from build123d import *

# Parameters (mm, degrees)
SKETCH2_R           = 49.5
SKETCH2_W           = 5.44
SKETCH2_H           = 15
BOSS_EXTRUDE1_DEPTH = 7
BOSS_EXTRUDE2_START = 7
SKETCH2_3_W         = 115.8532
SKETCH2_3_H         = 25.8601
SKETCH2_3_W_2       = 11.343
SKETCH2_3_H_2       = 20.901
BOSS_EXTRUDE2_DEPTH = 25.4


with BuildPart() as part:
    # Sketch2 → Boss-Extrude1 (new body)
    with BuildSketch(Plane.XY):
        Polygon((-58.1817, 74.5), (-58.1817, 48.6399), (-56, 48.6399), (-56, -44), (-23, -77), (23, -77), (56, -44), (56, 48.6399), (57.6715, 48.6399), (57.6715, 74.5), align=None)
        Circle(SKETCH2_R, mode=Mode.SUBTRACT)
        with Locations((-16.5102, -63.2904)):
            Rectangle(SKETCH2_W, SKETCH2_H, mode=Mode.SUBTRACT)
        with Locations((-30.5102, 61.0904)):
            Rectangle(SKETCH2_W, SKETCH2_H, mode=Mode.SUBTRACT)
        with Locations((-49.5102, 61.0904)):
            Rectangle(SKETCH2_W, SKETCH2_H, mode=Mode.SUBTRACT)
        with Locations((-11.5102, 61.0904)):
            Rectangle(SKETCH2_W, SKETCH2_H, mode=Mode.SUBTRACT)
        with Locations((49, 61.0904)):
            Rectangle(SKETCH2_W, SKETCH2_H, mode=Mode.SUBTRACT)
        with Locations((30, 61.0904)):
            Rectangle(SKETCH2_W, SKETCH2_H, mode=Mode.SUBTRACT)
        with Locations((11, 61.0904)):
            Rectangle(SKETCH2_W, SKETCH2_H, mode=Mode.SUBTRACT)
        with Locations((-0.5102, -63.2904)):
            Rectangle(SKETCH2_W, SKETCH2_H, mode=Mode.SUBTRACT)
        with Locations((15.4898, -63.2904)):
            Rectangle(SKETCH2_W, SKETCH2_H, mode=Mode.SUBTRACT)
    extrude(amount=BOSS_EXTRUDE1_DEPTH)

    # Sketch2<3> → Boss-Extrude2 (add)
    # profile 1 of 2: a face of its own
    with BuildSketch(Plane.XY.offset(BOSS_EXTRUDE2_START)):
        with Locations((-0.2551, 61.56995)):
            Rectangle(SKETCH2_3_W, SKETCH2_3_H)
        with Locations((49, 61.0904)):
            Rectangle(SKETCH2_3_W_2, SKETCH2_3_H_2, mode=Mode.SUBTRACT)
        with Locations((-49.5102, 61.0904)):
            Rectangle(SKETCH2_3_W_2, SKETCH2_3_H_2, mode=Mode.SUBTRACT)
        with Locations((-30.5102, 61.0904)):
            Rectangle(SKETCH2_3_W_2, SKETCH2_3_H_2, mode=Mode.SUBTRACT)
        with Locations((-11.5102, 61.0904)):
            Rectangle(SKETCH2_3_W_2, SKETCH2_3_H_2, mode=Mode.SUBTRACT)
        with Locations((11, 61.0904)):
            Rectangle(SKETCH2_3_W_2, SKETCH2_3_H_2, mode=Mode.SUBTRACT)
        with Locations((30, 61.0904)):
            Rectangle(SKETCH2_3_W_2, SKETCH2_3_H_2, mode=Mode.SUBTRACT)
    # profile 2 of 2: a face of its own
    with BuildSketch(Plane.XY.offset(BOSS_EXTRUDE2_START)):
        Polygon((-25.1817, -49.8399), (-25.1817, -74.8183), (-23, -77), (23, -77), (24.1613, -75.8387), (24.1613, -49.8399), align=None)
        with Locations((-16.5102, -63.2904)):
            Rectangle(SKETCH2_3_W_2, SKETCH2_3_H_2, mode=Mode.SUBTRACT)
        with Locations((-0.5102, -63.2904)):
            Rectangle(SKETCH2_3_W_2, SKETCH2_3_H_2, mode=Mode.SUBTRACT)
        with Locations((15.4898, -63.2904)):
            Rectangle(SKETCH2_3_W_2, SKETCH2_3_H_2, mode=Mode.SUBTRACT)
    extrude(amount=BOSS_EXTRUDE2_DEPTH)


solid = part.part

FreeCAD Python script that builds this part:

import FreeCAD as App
import Part
import Sketcher
from FreeCAD import Vector
Q = App.Units.Quantity


def add_polygon(sketch, points):
    """Adds a closed chain of lines whose ends are joined by coincident constraints."""
    first, n = sketch.GeometryCount, len(points)
    for a, b in zip(points, points[1:] + points[:1]):
        sketch.addGeometry(Part.LineSegment(App.Vector(*a, 0), App.Vector(*b, 0)), False)
    for i in range(n):
        sketch.addConstraint(Sketcher.Constraint("Coincident", first + i, 2, first + (i + 1) % n, 1))

doc = App.newDocument("Part")
body = doc.addObject("PartDesign::Body", "Body")

# Sketch on XY plane
sketch1 = doc.addObject("Sketcher::SketchObject", "Sketch")
body.addObject(sketch1)
sketch1.AttachmentSupport = (doc.XY_Plane, [""])
sketch1.MapMode = "FlatFace"
add_polygon(sketch1, [(-58.1817, 74.5), (-58.1817, 48.6399), (-56, 48.6399), (-56, -44), (-23, -77), (23, -77), (56, -44), (56, 48.6399), (57.6715, 48.6399), (57.6715, 74.5)])  # lines 0-9
add_polygon(sketch1, [(-13.7902, -70.7904), (-19.2302, -70.7904), (-19.2302, -55.7904), (-13.7902, -55.7904)])  # lines 10-13
add_polygon(sketch1, [(2.2098, -70.7904), (-3.2302, -70.7904), (-3.2302, -55.7904), (2.2098, -55.7904)])  # lines 14-17
add_polygon(sketch1, [(18.2098, -70.7904), (12.7698, -70.7904), (12.7698, -55.7904), (18.2098, -55.7904)])  # lines 18-21
add_polygon(sketch1, [(-46.7902, 53.5904), (-52.2302, 53.5904), (-52.2302, 68.5904), (-46.7902, 68.5904)])  # lines 22-25
add_polygon(sketch1, [(-27.7902, 53.5904), (-33.2302, 53.5904), (-33.2302, 68.5904), (-27.7902, 68.5904)])  # lines 26-29
add_polygon(sketch1, [(-8.7902, 53.5904), (-14.2302, 53.5904), (-14.2302, 68.5904), (-8.7902, 68.5904)])  # lines 30-33
sketch1.addGeometry(Part.Circle(Vector(0, 0, 0), Vector(0, 0, 1), 49.5), False)  # 34
add_polygon(sketch1, [(13.72, 53.5904), (8.28, 53.5904), (8.28, 68.5904), (13.72, 68.5904)])  # lines 35-38
add_polygon(sketch1, [(32.72, 53.5904), (27.28, 53.5904), (27.28, 68.5904), (32.72, 68.5904)])  # lines 39-42
add_polygon(sketch1, [(51.72, 53.5904), (46.28, 53.5904), (46.28, 68.5904), (51.72, 68.5904)])  # lines 43-46
sketch1.addConstraint(Sketcher.Constraint("Vertical", 0))
sketch1.addConstraint(Sketcher.Constraint("Horizontal", 1))
sketch1.addConstraint(Sketcher.Constraint("Vertical", 2))
sketch1.addConstraint(Sketcher.Constraint("Horizontal", 4))
sketch1.addConstraint(Sketcher.Constraint("Vertical", 6))
sketch1.addConstraint(Sketcher.Constraint("Horizontal", 7))
sketch1.addConstraint(Sketcher.Constraint("Vertical", 8))
sketch1.addConstraint(Sketcher.Constraint("Horizontal", 9))
sketch1.addConstraint(Sketcher.Constraint("Horizontal", 10))
sketch1.addConstraint(Sketcher.Constraint("Vertical", 11))
sketch1.addConstraint(Sketcher.Constraint("Horizontal", 12))
sketch1.addConstraint(Sketcher.Constraint("Vertical", 13))
sketch1.addConstraint(Sketcher.Constraint("Horizontal", 14))
sketch1.addConstraint(Sketcher.Constraint("Vertical", 15))
sketch1.addConstraint(Sketcher.Constraint("Horizontal", 16))
sketch1.addConstraint(Sketcher.Constraint("Vertical", 17))
sketch1.addConstraint(Sketcher.Constraint("Horizontal", 18))
sketch1.addConstraint(Sketcher.Constraint("Vertical", 19))
sketch1.addConstraint(Sketcher.Constraint("Horizontal", 20))
sketch1.addConstraint(Sketcher.Constraint("Vertical", 21))
sketch1.addConstraint(Sketcher.Constraint("Horizontal", 22))
sketch1.addConstraint(Sketcher.Constraint("Vertical", 23))
sketch1.addConstraint(Sketcher.Constraint("Horizontal", 24))
sketch1.addConstraint(Sketcher.Constraint("Vertical", 25))
sketch1.addConstraint(Sketcher.Constraint("Horizontal", 26))
sketch1.addConstraint(Sketcher.Constraint("Vertical", 27))
sketch1.addConstraint(Sketcher.Constraint("Horizontal", 28))
sketch1.addConstraint(Sketcher.Constraint("Vertical", 29))
sketch1.addConstraint(Sketcher.Constraint("Horizontal", 30))
sketch1.addConstraint(Sketcher.Constraint("Vertical", 31))
sketch1.addConstraint(Sketcher.Constraint("Horizontal", 32))
sketch1.addConstraint(Sketcher.Constraint("Vertical", 33))
sketch1.addConstraint(Sketcher.Constraint("Horizontal", 35))
sketch1.addConstraint(Sketcher.Constraint("Vertical", 36))
sketch1.addConstraint(Sketcher.Constraint("Horizontal", 37))
sketch1.addConstraint(Sketcher.Constraint("Vertical", 38))
sketch1.addConstraint(Sketcher.Constraint("Horizontal", 39))
sketch1.addConstraint(Sketcher.Constraint("Vertical", 40))
sketch1.addConstraint(Sketcher.Constraint("Horizontal", 41))
sketch1.addConstraint(Sketcher.Constraint("Vertical", 42))
sketch1.addConstraint(Sketcher.Constraint("Horizontal", 43))
sketch1.addConstraint(Sketcher.Constraint("Vertical", 44))
sketch1.addConstraint(Sketcher.Constraint("Horizontal", 45))
sketch1.addConstraint(Sketcher.Constraint("Vertical", 46))
sketch1.addConstraint(Sketcher.Constraint("Coincident", 34, 3, -1, 1))
sketch1.addConstraint(Sketcher.Constraint("Symmetric", 2, 2, 5, 2, -2))
sketch1.addConstraint(Sketcher.Constraint("Perpendicular", 3, 5))
sketch1.addConstraint(Sketcher.Constraint("Horizontal", 1, 2, 6, 2))
sketch1.addConstraint(Sketcher.Constraint("Horizontal", 13, 2, 14, 2))
sketch1.addConstraint(Sketcher.Constraint("Horizontal", 12, 2, 15, 2))
sketch1.addConstraint(Sketcher.Constraint("Horizontal", 17, 2, 18, 2))
sketch1.addConstraint(Sketcher.Constraint("Horizontal", 16, 2, 19, 2))
sketch1.addConstraint(Sketcher.Constraint("Horizontal", 25, 2, 26, 2))
sketch1.addConstraint(Sketcher.Constraint("Horizontal", 24, 2, 27, 2))
sketch1.addConstraint(Sketcher.Constraint("Horizontal", 29, 2, 30, 2))
sketch1.addConstraint(Sketcher.Constraint("Horizontal", 28, 2, 31, 2))
sketch1.addConstraint(Sketcher.Constraint("Horizontal", 33, 2, 35, 2))
sketch1.addConstraint(Sketcher.Constraint("Horizontal", 32, 2, 36, 2))
sketch1.addConstraint(Sketcher.Constraint("Horizontal", 38, 2, 39, 2))
sketch1.addConstraint(Sketcher.Constraint("Horizontal", 37, 2, 40, 2))
sketch1.addConstraint(Sketcher.Constraint("Horizontal", 42, 2, 43, 2))
sketch1.addConstraint(Sketcher.Constraint("Horizontal", 41, 2, 44, 2))
sketch1.addConstraint(Sketcher.Constraint("Equal", 12, 14))
sketch1.addConstraint(Sketcher.Constraint("Equal", 16, 18))
sketch1.addConstraint(Sketcher.Constraint("Equal", 20, 22))
sketch1.addConstraint(Sketcher.Constraint("Equal", 24, 26))
sketch1.addConstraint(Sketcher.Constraint("Equal", 28, 30))
sketch1.addConstraint(Sketcher.Constraint("Equal", 32, 35))
sketch1.addConstraint(Sketcher.Constraint("Equal", 37, 39))
sketch1.addConstraint(Sketcher.Constraint("Equal", 41, 43))
sketch1.addConstraint(Sketcher.Constraint("Equal", 21, 23))
sketch1.addConstraint(Sketcher.Constraint("Equal", 3, 5))
sketch1.addConstraint(Sketcher.Constraint("Diameter", 34, Q("99 mm")))
sketch1.addConstraint(Sketcher.Constraint("DistanceX", 4, 1, 4, 2, Q("46 mm")))
sketch1.addConstraint(Sketcher.Constraint("DistanceY", 11, 1, 11, 2, Q("15 mm")))
sketch1.addConstraint(Sketcher.Constraint("DistanceX", 1, 2, -1, 1, Q("56 mm")))
sketch1.addConstraint(Sketcher.Constraint("DistanceY", 2, 2, -1, 1, Q("44 mm")))
sketch1.addConstraint(Sketcher.Constraint("DistanceX", 10, 2, 14, 2, Q("16 mm")))
sketch1.addConstraint(Sketcher.Constraint("DistanceX", 14, 2, 18, 2, Q("16 mm")))
sketch1.addConstraint(Sketcher.Constraint("DistanceX", 22, 2, 26, 2, Q("19 mm")))
sketch1.addConstraint(Sketcher.Constraint("DistanceX", 26, 2, 30, 2, Q("19 mm")))
sketch1.addConstraint(Sketcher.Constraint("DistanceX", 35, 2, 39, 2, Q("19 mm")))
sketch1.addConstraint(Sketcher.Constraint("DistanceX", 39, 2, 43, 2, Q("19 mm")))
sketch1.addConstraint(Sketcher.Constraint("DistanceX", 10, 2, 10, 1, Q("5.44 mm")))
sketch1.addConstraint(Sketcher.Constraint("DistanceY", -1, 1, 8, 2, Q("74.5 mm")))
sketch1.addConstraint(Sketcher.Constraint("DistanceX", -1, 1, 35, 2, Q("8.28 mm")))
sketch1.addConstraint(Sketcher.Constraint("DistanceX", 1, 1, 1, 2, Q("2.1817 mm")))
sketch1.addConstraint(Sketcher.Constraint("DistanceX", 7, 1, 7, 2, Q("1.6715 mm")))
sketch1.addConstraint(Sketcher.Constraint("DistanceY", 0, 2, 0, 1, Q("25.8601 mm")))
sketch1.addConstraint(Sketcher.Constraint("DistanceX", 10, 2, -1, 1, Q("19.2302 mm")))
sketch1.addConstraint(Sketcher.Constraint("DistanceY", 10, 2, -1, 1, Q("70.7904 mm")))
sketch1.addConstraint(Sketcher.Constraint("DistanceX", 22, 2, -1, 1, Q("52.2302 mm")))
sketch1.addConstraint(Sketcher.Constraint("DistanceY", -1, 1, 22, 2, Q("53.5904 mm")))
pad1 = doc.addObject("PartDesign::Pad", "Pad")
body.addObject(pad1)
pad1.Profile = sketch1
pad1.Length = 7

# Sketch on XY plane
sketch2 = doc.addObject("Sketcher::SketchObject", "Sketch001")
body.addObject(sketch2)
sketch2.AttachmentSupport = (doc.XY_Plane, [""])
sketch2.MapMode = "FlatFace"
sketch2.AttachmentOffset = App.Placement(Vector(0, 0, 7), App.Rotation())
add_polygon(sketch2, [(-58.1817, 74.5), (-58.1817, 48.6399), (57.6715, 48.6399), (57.6715, 74.5)])  # lines 0-3
add_polygon(sketch2, [(-43.8387, 50.6399), (-55.1817, 50.6399), (-55.1817, 71.5409), (-43.8387, 71.5409)])  # lines 4-7
add_polygon(sketch2, [(-24.8387, 50.6399), (-36.1817, 50.6399), (-36.1817, 71.5409), (-24.8387, 71.5409)])  # lines 8-11
add_polygon(sketch2, [(-5.8387, 50.6399), (-17.1817, 50.6399), (-17.1817, 71.5409), (-5.8387, 71.5409)])  # lines 12-15
add_polygon(sketch2, [(16.6715, 50.6399), (5.3285, 50.6399), (5.3285, 71.5409), (16.6715, 71.5409)])  # lines 16-19
add_polygon(sketch2, [(35.6715, 50.6399), (24.3285, 50.6399), (24.3285, 71.5409), (35.6715, 71.5409)])  # lines 20-23
add_polygon(sketch2, [(54.6715, 50.6399), (43.3285, 50.6399), (43.3285, 71.5409), (54.6715, 71.5409)])  # lines 24-27
add_polygon(sketch2, [(-25.1817, -49.8399), (-25.1817, -74.8183), (-23, -77), (23, -77), (24.1613, -75.8387), (24.1613, -49.8399)])  # lines 28-33
add_polygon(sketch2, [(-10.8387, -73.7409), (-22.1817, -73.7409), (-22.1817, -52.8399), (-10.8387, -52.8399)])  # lines 34-37
add_polygon(sketch2, [(5.1613, -73.7409), (-6.1817, -73.7409), (-6.1817, -52.8399), (5.1613, -52.8399)])  # lines 38-41
add_polygon(sketch2, [(21.1613, -73.7409), (9.8183, -73.7409), (9.8183, -52.8399), (21.1613, -52.8399)])  # lines 42-45
sketch2.addConstraint(Sketcher.Constraint("Vertical", 0))
sketch2.addConstraint(Sketcher.Constraint("Horizontal", 1))
sketch2.addConstraint(Sketcher.Constraint("Vertical", 2))
sketch2.addConstraint(Sketcher.Constraint("Horizontal", 3))
sketch2.addConstraint(Sketcher.Constraint("Horizontal", 4))
sketch2.addConstraint(Sketcher.Constraint("Vertical", 5))
sketch2.addConstraint(Sketcher.Constraint("Horizontal", 6))
sketch2.addConstraint(Sketcher.Constraint("Vertical", 7))
sketch2.addConstraint(Sketcher.Constraint("Horizontal", 8))
sketch2.addConstraint(Sketcher.Constraint("Vertical", 9))
sketch2.addConstraint(Sketcher.Constraint("Horizontal", 10))
sketch2.addConstraint(Sketcher.Constraint("Vertical", 11))
sketch2.addConstraint(Sketcher.Constraint("Horizontal", 12))
sketch2.addConstraint(Sketcher.Constraint("Vertical", 13))
sketch2.addConstraint(Sketcher.Constraint("Horizontal", 14))
sketch2.addConstraint(Sketcher.Constraint("Vertical", 15))
sketch2.addConstraint(Sketcher.Constraint("Horizontal", 16))
sketch2.addConstraint(Sketcher.Constraint("Vertical", 17))
sketch2.addConstraint(Sketcher.Constraint("Horizontal", 18))
sketch2.addConstraint(Sketcher.Constraint("Vertical", 19))
sketch2.addConstraint(Sketcher.Constraint("Horizontal", 20))
sketch2.addConstraint(Sketcher.Constraint("Vertical", 21))
sketch2.addConstraint(Sketcher.Constraint("Horizontal", 22))
sketch2.addConstraint(Sketcher.Constraint("Vertical", 23))
sketch2.addConstraint(Sketcher.Constraint("Horizontal", 24))
sketch2.addConstraint(Sketcher.Constraint("Vertical", 25))
sketch2.addConstraint(Sketcher.Constraint("Horizontal", 26))
sketch2.addConstraint(Sketcher.Constraint("Vertical", 27))
sketch2.addConstraint(Sketcher.Constraint("Vertical", 28))
sketch2.addConstraint(Sketcher.Constraint("Horizontal", 30))
sketch2.addConstraint(Sketcher.Constraint("Vertical", 32))
sketch2.addConstraint(Sketcher.Constraint("Horizontal", 33))
sketch2.addConstraint(Sketcher.Constraint("Horizontal", 34))
sketch2.addConstraint(Sketcher.Constraint("Vertical", 35))
sketch2.addConstraint(Sketcher.Constraint("Horizontal", 36))
sketch2.addConstraint(Sketcher.Constraint("Vertical", 37))
sketch2.addConstraint(Sketcher.Constraint("Horizontal", 38))
sketch2.addConstraint(Sketcher.Constraint("Vertical", 39))
sketch2.addConstraint(Sketcher.Constraint("Horizontal", 40))
sketch2.addConstraint(Sketcher.Constraint("Vertical", 41))
sketch2.addConstraint(Sketcher.Constraint("Horizontal", 42))
sketch2.addConstraint(Sketcher.Constraint("Vertical", 43))
sketch2.addConstraint(Sketcher.Constraint("Horizontal", 44))
sketch2.addConstraint(Sketcher.Constraint("Vertical", 45))
sketch2.addConstraint(Sketcher.Constraint("Perpendicular", 29, 31))
sketch2.addConstraint(Sketcher.Constraint("Horizontal", 7, 2, 8, 2))
sketch2.addConstraint(Sketcher.Constraint("Horizontal", 6, 2, 9, 2))
sketch2.addConstraint(Sketcher.Constraint("Horizontal", 11, 2, 12, 2))
sketch2.addConstraint(Sketcher.Constraint("Horizontal", 10, 2, 13, 2))
sketch2.addConstraint(Sketcher.Constraint("Horizontal", 15, 2, 16, 2))
sketch2.addConstraint(Sketcher.Constraint("Horizontal", 14, 2, 17, 2))
sketch2.addConstraint(Sketcher.Constraint("Horizontal", 19, 2, 20, 2))
sketch2.addConstraint(Sketcher.Constraint("Horizontal", 18, 2, 21, 2))
sketch2.addConstraint(Sketcher.Constraint("Horizontal", 23, 2, 24, 2))
sketch2.addConstraint(Sketcher.Constraint("Horizontal", 22, 2, 25, 2))
sketch2.addConstraint(Sketcher.Constraint("Horizontal", 37, 2, 38, 2))
sketch2.addConstraint(Sketcher.Constraint("Horizontal", 36, 2, 39, 2))
sketch2.addConstraint(Sketcher.Constraint("Horizontal", 41, 2, 42, 2))
sketch2.addConstraint(Sketcher.Constraint("Horizontal", 40, 2, 43, 2))
sketch2.addConstraint(Sketcher.Constraint("Equal", 6, 8))
sketch2.addConstraint(Sketcher.Constraint("Equal", 10, 12))
sketch2.addConstraint(Sketcher.Constraint("Equal", 14, 16))
sketch2.addConstraint(Sketcher.Constraint("Equal", 18, 20))
sketch2.addConstraint(Sketcher.Constraint("Equal", 22, 24))
sketch2.addConstraint(Sketcher.Constraint("Equal", 26, 34))
sketch2.addConstraint(Sketcher.Constraint("Equal", 36, 38))
sketch2.addConstraint(Sketcher.Constraint("Equal", 40, 42))
sketch2.addConstraint(Sketcher.Constraint("Equal", 27, 35))
sketch2.addConstraint(Sketcher.Constraint("DistanceX", 30, 1, 30, 2, Q("46 mm")))
sketch2.addConstraint(Sketcher.Constraint("Angle", 29, Q("-45 deg")))
sketch2.addConstraint(Sketcher.Constraint("DistanceX", 29, 2, -1, 1, Q("23 mm")))
sketch2.addConstraint(Sketcher.Constraint("DistanceY", 29, 2, -1, 1, Q("77 mm")))
sketch2.addConstraint(Sketcher.Constraint("DistanceX", 0, 2, 4, 2, Q("3 mm")))
sketch2.addConstraint(Sketcher.Constraint("DistanceY", 0, 2, 4, 2, Q("2 mm")))
sketch2.addConstraint(Sketcher.Constraint("DistanceX", 4, 2, 8, 2, Q("19 mm")))
sketch2.addConstraint(Sketcher.Constraint("DistanceX", 8, 2, 12, 2, Q("19 mm")))
sketch2.addConstraint(Sketcher.Constraint("DistanceX", 16, 2, 20, 2, Q("19 mm")))
sketch2.addConstraint(Sketcher.Constraint("DistanceX", 22, 2, 2, 2, Q("22 mm")))
sketch2.addConstraint(Sketcher.Constraint("DistanceX", 20, 2, 24, 2, Q("19 mm")))
sketch2.addConstraint(Sketcher.Constraint("DistanceX", 28, 2, 12, 2, Q("8 mm")))
sketch2.addConstraint(Sketcher.Constraint("DistanceX", 28, 2, 34, 2, Q("3 mm")))
sketch2.addConstraint(Sketcher.Constraint("DistanceY", 35, 2, 33, 2, Q("3 mm")))
sketch2.addConstraint(Sketcher.Constraint("DistanceX", 34, 2, 38, 2, Q("16 mm")))
sketch2.addConstraint(Sketcher.Constraint("DistanceX", 40, 2, 32, 2, Q("19 mm")))
sketch2.addConstraint(Sketcher.Constraint("DistanceX", 38, 2, 42, 2, Q("16 mm")))
sketch2.addConstraint(Sketcher.Constraint("DistanceY", -1, 1, 2, 2, Q("74.5 mm")))
sketch2.addConstraint(Sketcher.Constraint("DistanceX", 4, 2, 4, 1, Q("11.343 mm")))
sketch2.addConstraint(Sketcher.Constraint("DistanceY", 5, 1, 5, 2, Q("20.901 mm")))
sketch2.addConstraint(Sketcher.Constraint("DistanceX", 1, 1, 1, 2, Q("115.8532 mm")))
sketch2.addConstraint(Sketcher.Constraint("DistanceY", 0, 2, 0, 1, Q("25.8601 mm")))
sketch2.addConstraint(Sketcher.Constraint("DistanceY", 28, 2, 28, 1, Q("24.9784 mm")))
sketch2.addConstraint(Sketcher.Constraint("DistanceY", 32, 1, 32, 2, Q("25.9988 mm")))
pad2 = doc.addObject("PartDesign::Pad", "Pad001")
body.addObject(pad2)
pad2.Profile = sketch2
pad2.Length = 25.4

doc.recompute()
